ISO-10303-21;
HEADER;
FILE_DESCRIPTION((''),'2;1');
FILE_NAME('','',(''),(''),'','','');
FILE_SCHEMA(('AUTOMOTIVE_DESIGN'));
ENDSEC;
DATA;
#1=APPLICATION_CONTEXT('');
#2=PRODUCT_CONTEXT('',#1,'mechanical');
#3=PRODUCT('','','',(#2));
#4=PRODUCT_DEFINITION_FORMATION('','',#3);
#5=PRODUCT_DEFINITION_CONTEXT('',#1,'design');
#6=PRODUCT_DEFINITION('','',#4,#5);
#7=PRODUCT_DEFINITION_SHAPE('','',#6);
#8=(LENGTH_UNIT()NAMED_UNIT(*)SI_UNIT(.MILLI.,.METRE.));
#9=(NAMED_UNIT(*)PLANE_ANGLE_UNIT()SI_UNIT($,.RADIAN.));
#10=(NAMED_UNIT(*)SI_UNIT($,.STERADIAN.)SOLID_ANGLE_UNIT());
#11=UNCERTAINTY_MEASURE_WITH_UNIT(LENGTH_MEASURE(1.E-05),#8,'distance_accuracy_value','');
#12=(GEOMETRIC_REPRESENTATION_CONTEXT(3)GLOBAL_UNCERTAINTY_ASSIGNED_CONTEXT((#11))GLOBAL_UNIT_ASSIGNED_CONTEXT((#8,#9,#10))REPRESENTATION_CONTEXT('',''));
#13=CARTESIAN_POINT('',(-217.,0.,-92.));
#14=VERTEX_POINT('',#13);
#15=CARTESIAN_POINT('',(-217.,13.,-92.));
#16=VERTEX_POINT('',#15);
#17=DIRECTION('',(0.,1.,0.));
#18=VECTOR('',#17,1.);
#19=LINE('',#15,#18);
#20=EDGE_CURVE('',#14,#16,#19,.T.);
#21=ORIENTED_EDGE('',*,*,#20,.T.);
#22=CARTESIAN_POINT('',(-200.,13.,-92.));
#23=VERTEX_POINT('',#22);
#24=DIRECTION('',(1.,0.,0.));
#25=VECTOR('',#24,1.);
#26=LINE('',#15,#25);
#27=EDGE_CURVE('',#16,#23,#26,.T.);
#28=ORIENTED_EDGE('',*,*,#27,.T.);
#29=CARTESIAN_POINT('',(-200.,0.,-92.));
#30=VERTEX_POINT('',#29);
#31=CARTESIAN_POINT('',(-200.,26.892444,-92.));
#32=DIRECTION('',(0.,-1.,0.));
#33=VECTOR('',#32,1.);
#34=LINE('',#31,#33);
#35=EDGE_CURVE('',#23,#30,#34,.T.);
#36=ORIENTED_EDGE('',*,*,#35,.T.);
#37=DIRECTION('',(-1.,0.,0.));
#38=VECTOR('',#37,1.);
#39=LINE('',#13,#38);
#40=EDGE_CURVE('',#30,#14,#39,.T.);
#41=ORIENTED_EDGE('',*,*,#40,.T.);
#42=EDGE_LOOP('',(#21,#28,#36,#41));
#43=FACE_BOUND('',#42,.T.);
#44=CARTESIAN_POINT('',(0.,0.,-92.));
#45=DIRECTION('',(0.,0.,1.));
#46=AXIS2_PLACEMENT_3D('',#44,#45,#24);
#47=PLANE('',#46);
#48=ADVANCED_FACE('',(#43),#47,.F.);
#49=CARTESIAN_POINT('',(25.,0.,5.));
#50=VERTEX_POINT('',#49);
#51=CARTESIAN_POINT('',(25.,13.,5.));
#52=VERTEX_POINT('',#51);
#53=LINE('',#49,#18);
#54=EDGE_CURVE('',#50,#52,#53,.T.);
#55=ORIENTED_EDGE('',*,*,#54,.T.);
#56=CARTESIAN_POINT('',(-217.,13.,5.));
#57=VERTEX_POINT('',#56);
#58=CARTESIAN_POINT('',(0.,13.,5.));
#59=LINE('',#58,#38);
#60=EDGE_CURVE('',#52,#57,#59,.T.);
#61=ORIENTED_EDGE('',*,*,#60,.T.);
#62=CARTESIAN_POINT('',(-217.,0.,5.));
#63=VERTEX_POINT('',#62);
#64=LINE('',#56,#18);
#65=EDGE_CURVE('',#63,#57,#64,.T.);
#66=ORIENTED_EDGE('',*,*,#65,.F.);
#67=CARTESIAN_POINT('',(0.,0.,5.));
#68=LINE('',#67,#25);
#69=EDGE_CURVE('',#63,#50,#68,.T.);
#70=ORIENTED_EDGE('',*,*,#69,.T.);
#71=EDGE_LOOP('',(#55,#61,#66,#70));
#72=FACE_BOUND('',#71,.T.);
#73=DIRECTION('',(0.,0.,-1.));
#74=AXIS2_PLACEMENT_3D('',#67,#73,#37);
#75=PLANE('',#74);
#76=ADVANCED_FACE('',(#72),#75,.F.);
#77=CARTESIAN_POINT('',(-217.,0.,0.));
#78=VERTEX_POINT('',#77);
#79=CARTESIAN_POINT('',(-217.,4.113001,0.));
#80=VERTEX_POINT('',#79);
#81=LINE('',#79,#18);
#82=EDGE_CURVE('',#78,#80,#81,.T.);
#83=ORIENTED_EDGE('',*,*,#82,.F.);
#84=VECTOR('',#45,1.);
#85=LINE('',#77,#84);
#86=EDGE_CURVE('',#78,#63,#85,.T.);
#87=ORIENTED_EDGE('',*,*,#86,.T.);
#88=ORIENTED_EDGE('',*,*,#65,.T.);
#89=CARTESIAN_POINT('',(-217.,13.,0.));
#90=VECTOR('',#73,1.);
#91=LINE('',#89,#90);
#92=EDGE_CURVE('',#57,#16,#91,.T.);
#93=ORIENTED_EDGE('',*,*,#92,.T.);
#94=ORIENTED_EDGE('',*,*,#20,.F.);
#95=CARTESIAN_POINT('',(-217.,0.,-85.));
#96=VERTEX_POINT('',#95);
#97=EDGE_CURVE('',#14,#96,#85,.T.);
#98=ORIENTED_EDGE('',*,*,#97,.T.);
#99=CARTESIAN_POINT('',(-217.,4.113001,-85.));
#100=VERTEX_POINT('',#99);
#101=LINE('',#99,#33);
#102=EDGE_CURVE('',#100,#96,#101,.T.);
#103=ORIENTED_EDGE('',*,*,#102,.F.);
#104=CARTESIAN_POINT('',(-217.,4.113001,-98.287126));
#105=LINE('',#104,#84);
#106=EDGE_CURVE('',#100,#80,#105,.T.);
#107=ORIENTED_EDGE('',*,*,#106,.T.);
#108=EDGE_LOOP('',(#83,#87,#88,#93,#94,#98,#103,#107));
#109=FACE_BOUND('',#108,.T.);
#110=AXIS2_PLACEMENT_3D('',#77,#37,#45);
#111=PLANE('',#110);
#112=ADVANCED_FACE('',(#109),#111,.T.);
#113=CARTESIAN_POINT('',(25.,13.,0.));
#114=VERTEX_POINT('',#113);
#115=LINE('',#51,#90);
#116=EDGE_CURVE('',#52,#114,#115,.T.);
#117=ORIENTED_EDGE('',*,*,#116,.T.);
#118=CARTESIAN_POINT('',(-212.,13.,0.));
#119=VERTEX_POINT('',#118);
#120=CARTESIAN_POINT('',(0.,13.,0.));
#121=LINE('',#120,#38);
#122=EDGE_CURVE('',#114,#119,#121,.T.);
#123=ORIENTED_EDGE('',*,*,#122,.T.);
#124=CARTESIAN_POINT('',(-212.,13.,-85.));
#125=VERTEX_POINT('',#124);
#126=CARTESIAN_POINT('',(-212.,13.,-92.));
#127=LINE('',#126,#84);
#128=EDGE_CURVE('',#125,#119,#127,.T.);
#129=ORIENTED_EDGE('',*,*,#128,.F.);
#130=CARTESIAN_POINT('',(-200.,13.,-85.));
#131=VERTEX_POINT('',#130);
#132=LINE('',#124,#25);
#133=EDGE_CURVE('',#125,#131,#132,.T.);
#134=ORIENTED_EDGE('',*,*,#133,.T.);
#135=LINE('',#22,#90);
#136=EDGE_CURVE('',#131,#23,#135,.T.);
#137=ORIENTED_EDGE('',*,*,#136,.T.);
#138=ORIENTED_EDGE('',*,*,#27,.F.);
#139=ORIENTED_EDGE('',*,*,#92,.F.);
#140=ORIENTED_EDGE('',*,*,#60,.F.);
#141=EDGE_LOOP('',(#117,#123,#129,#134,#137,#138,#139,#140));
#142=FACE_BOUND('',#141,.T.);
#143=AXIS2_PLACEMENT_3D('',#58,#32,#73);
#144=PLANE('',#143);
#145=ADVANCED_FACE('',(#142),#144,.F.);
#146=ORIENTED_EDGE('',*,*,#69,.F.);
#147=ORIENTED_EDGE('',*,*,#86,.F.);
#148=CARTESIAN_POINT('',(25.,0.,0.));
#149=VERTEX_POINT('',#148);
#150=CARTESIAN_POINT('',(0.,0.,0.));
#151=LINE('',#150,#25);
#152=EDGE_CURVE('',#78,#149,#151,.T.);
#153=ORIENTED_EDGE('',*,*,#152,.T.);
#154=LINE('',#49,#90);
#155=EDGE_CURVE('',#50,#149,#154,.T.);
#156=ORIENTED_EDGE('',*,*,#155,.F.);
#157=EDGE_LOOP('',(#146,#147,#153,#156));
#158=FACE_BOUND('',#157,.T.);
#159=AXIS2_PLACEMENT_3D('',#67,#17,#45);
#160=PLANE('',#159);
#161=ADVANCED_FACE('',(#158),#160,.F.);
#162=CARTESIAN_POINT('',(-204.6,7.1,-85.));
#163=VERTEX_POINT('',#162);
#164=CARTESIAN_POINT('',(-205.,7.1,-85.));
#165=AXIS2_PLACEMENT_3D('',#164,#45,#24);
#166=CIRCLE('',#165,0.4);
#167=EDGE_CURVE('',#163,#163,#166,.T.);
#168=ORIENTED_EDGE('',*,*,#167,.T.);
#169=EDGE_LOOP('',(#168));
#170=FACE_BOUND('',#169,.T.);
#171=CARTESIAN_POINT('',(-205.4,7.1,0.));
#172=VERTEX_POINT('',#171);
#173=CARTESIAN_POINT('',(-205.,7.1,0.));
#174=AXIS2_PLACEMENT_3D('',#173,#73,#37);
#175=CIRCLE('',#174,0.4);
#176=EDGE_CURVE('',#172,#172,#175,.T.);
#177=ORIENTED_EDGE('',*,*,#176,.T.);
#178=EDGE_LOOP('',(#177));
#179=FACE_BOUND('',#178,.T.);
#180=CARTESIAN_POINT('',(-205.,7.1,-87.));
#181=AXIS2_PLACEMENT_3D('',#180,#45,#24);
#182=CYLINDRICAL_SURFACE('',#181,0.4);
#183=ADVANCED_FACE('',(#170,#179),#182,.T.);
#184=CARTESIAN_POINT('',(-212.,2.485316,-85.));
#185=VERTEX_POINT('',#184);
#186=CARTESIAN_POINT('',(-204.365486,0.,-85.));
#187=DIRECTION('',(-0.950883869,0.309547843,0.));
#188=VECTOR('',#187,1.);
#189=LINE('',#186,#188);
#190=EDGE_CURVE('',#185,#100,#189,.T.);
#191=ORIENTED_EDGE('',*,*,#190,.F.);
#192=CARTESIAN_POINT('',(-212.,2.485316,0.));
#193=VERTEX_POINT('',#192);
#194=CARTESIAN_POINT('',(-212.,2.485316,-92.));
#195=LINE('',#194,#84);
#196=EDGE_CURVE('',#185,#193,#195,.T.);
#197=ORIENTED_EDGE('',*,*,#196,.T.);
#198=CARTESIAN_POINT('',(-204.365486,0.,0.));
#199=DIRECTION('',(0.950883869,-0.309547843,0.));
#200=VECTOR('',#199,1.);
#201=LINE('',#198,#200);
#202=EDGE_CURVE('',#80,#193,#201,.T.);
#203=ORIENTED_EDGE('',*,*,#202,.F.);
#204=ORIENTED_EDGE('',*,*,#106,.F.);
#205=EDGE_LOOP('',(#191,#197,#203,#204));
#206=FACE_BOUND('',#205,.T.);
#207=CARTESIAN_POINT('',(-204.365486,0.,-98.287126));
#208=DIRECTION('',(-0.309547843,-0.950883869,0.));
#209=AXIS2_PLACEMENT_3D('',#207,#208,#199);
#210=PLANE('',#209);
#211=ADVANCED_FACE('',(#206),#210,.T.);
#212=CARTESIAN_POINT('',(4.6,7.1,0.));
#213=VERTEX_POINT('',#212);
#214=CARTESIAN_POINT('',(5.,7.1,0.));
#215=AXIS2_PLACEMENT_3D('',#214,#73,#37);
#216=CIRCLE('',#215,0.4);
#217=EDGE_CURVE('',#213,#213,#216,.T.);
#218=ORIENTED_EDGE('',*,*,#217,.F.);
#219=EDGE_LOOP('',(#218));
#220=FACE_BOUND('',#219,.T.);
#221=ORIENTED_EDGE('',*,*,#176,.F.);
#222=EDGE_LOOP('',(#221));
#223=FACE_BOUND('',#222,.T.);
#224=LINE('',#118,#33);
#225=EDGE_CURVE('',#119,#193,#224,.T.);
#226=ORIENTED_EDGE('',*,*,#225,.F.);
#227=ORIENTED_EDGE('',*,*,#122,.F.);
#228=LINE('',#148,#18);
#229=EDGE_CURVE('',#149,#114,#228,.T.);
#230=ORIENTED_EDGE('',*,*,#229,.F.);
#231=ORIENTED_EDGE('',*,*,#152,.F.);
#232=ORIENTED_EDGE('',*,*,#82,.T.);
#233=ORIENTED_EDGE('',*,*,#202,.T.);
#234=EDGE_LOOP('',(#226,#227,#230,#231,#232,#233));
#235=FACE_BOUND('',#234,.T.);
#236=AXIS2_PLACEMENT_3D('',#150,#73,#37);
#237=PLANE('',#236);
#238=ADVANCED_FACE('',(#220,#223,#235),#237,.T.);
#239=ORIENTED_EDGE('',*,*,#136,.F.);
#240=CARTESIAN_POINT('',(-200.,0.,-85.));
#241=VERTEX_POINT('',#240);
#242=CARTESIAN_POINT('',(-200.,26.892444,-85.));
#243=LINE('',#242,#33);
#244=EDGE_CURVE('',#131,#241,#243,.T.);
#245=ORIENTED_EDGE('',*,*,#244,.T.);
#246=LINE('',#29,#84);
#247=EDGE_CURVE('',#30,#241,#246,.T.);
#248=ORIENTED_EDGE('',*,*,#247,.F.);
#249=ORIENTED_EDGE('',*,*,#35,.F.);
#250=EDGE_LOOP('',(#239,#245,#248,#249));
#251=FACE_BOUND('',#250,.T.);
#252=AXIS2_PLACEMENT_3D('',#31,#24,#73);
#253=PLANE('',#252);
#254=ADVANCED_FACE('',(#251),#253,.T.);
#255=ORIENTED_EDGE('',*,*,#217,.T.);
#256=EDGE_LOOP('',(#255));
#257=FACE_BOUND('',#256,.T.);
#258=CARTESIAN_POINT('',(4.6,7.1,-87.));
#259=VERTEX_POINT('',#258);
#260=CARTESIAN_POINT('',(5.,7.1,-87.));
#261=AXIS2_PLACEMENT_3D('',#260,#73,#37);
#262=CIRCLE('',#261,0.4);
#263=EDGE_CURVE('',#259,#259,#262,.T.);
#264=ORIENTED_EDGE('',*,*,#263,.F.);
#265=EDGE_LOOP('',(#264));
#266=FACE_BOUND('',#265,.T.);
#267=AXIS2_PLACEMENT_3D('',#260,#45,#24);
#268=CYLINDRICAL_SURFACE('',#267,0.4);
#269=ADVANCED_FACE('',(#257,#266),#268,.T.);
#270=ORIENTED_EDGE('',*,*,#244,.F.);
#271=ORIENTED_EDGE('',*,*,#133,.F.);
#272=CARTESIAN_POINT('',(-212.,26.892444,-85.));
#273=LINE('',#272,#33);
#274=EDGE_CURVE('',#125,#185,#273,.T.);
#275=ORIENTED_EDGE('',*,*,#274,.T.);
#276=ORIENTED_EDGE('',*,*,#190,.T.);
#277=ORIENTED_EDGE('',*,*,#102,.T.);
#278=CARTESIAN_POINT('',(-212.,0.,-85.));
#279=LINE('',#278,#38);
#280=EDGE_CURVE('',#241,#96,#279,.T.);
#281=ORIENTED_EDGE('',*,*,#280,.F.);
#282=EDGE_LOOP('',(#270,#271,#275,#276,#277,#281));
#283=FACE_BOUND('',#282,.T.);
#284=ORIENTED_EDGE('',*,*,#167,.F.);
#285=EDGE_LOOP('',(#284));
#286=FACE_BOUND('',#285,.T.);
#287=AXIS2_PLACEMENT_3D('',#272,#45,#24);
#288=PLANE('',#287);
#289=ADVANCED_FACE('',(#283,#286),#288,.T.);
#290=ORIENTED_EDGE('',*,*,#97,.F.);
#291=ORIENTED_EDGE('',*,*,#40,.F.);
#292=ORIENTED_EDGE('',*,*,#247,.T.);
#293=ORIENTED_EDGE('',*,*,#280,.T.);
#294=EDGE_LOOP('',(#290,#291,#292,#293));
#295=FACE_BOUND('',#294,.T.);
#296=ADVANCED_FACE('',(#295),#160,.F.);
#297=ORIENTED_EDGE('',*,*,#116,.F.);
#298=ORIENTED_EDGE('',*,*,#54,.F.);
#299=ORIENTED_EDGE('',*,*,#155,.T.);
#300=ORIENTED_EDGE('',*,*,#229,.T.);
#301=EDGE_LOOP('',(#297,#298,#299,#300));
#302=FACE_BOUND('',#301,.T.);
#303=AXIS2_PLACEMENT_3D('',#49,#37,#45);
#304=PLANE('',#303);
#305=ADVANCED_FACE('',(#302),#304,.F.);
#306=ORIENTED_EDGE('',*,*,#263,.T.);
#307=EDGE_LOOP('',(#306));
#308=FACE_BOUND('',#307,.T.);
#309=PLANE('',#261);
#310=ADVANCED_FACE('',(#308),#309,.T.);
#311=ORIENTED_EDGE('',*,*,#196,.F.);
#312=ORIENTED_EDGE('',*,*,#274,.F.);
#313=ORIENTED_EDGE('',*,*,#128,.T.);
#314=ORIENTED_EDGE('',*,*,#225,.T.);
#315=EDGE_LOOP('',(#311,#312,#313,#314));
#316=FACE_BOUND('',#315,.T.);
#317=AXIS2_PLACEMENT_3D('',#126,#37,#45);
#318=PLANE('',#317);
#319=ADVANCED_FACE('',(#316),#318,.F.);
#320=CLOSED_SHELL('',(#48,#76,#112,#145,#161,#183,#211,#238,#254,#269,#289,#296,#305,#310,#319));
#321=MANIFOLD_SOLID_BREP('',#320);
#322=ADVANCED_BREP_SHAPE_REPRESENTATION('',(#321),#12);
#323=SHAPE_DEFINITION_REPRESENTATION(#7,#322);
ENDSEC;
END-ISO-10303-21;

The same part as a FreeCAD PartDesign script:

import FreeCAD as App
import Part
import Sketcher
Q = App.Units.Quantity


def add_polygon(sketch, points):
    """Adds a closed chain of lines whose ends are joined by coincident constraints."""
    first, n = sketch.GeometryCount, len(points)
    for a, b in zip(points, points[1:] + points[:1]):
        sketch.addGeometry(Part.LineSegment(App.Vector(*a, 0), App.Vector(*b, 0)), False)
    for i in range(n):
        sketch.addConstraint(Sketcher.Constraint("Coincident", first + i, 2, first + (i + 1) % n, 1))

doc = App.newDocument("Part")
params = doc.addObject("Spreadsheet::Sheet", "Params")
for row, (alias, value) in enumerate([
    ("sketch1_width", "25 mm"),
    ("sketch1_height", "13 mm"),
    ("pad1_length", "5 mm"),
    ("sketch2_diameter", "0.8 mm"),
    ("pad2_length", "87 mm"),
    ("sketch3_width", "13 mm"),
    ("sketch3_height", "5 mm"),
    ("pad3_length", "210 mm"),
    ("sketch4_diameter", "0.8 mm"),
    ("pad4_length", "87 mm"),
    ("sketch5_width", "13 mm"),
    ("sketch5_height", "5 mm"),
    ("pad5_length", "7 mm"),
    ("sketch6_width", "5 mm"),
    ("sketch6_height", "13 mm"),
    ("pad6_length", "92 mm"),
    ("sketch7_width", "12 mm"),
    ("sketch7_height", "7 mm"),
    ("pad7_length", "13 mm"),
    ("pocket1_length", "85 mm"),
], start=1):
    params.set(f"A{row}", alias)
    params.set(f"B{row}", "=" + value)
    params.setAlias(f"B{row}", alias)

body = doc.addObject("PartDesign::Body", "Body")

sketch1 = body.newObject("Sketcher::SketchObject", "Sketch")
sketch1.AttachmentSupport = (doc.getObject("XY_Plane"), [""])
sketch1.MapMode = "FlatFace"
add_polygon(sketch1, [(0, 13), (0, 0), (25, 0), (25, 13)])
sketch1.addConstraint(Sketcher.Constraint("Vertical", 0))
sketch1.addConstraint(Sketcher.Constraint("Horizontal", 1))
sketch1.addConstraint(Sketcher.Constraint("Vertical", 2))
sketch1.addConstraint(Sketcher.Constraint("Horizontal", 3))
sketch1.addConstraint(Sketcher.Constraint("Coincident", 0, 2, -1, 1))
sketch1.addConstraint(Sketcher.Constraint("DistanceX", 1, 1, 1, 2, Q("25 mm")))
sketch1.addConstraint(Sketcher.Constraint("DistanceY", 0, 2, 0, 1, Q("13 mm")))
sketch1.setExpression("Constraints[9]", "Params.sketch1_width")
sketch1.setExpression("Constraints[10]", "Params.sketch1_height")
pad1 = body.newObject("PartDesign::Pad", "Pad")
pad1.Profile = sketch1
pad1.setExpression("Length", "Params.pad1_length")

sketch2 = body.newObject("Sketcher::SketchObject", "Sketch001")
sketch2.AttachmentSupport = (doc.getObject("XY_Plane"), [""])
sketch2.MapMode = "FlatFace"
sketch2.addGeometry(Part.Circle(App.Vector(5, 7.1, 0), App.Vector(0, 0, 1), 0.4), False)
sketch2.addConstraint(Sketcher.Constraint("Diameter", 0, Q("0.8 mm")))
sketch2.addConstraint(Sketcher.Constraint("DistanceX", -1, 1, 0, 3, Q("5 mm")))
sketch2.addConstraint(Sketcher.Constraint("DistanceY", -1, 1, 0, 3, Q("7.1 mm")))
sketch2.setExpression("Constraints[0]", "Params.sketch2_diameter")
pad2 = body.newObject("PartDesign::Pad", "Pad001")
pad2.Profile = sketch2
pad2.setExpression("Length", "Params.pad2_length")
pad2.Reversed = True

sketch3 = body.newObject("Sketcher::SketchObject", "Sketch002")
sketch3.AttachmentSupport = (doc.getObject("YZ_Plane"), [""])
sketch3.MapMode = "FlatFace"
add_polygon(sketch3, [(13, 0), (0, 0), (0, 5), (13, 5)])
sketch3.addConstraint(Sketcher.Constraint("Horizontal", 0))
sketch3.addConstraint(Sketcher.Constraint("Vertical", 1))
sketch3.addConstraint(Sketcher.Constraint("Horizontal", 2))
sketch3.addConstraint(Sketcher.Constraint("Vertical", 3))
sketch3.addConstraint(Sketcher.Constraint("Coincident", 0, 2, -1, 1))
sketch3.addConstraint(Sketcher.Constraint("DistanceX", 0, 2, 0, 1, Q("13 mm")))
sketch3.addConstraint(Sketcher.Constraint("DistanceY", 1, 1, 1, 2, Q("5 mm")))
sketch3.setExpression("Constraints[9]", "Params.sketch3_width")
sketch3.setExpression("Constraints[10]", "Params.sketch3_height")
pad3 = body.newObject("PartDesign::Pad", "Pad002")
pad3.Profile = sketch3
pad3.setExpression("Length", "Params.pad3_length")
pad3.Reversed = True

sketch4 = body.newObject("Sketcher::SketchObject", "Sketch003")
sketch4.AttachmentSupport = (doc.getObject("XY_Plane"), [""])
sketch4.MapMode = "FlatFace"
sketch4.addGeometry(Part.Circle(App.Vector(-205, 7.1, 0), App.Vector(0, 0, 1), 0.4), False)
sketch4.addConstraint(Sketcher.Constraint("Diameter", 0, Q("0.8 mm")))
sketch4.addConstraint(Sketcher.Constraint("DistanceX", 0, 3, -1, 1, Q("205 mm")))
sketch4.addConstraint(Sketcher.Constraint("DistanceY", -1, 1, 0, 3, Q("7.1 mm")))
sketch4.setExpression("Constraints[0]", "Params.sketch4_diameter")
pad4 = body.newObject("PartDesign::Pad", "Pad003")
pad4.Profile = sketch4
pad4.setExpression("Length", "Params.pad4_length")
pad4.Reversed = True

sketch5 = body.newObject("Sketcher::SketchObject", "Sketch004")
sketch5.AttachmentSupport = (doc.getObject("YZ_Plane"), [""])
sketch5.MapMode = "FlatFace"
sketch5.AttachmentOffset = App.Placement(App.Vector(0, 0, -210), App.Rotation())
add_polygon(sketch5, [(13, 0), (0, 0), (0, 5), (13, 5)])
sketch5.addConstraint(Sketcher.Constraint("Horizontal", 0))
sketch5.addConstraint(Sketcher.Constraint("Vertical", 1))
sketch5.addConstraint(Sketcher.Constraint("Horizontal", 2))
sketch5.addConstraint(Sketcher.Constraint("Vertical", 3))
sketch5.addConstraint(Sketcher.Constraint("Coincident", 0, 2, -1, 1))
sketch5.addConstraint(Sketcher.Constraint("DistanceX", 0, 2, 0, 1, Q("13 mm")))
sketch5.addConstraint(Sketcher.Constraint("DistanceY", 1, 1, 1, 2, Q("5 mm")))
sketch5.setExpression("Constraints[9]", "Params.sketch5_width")
sketch5.setExpression("Constraints[10]", "Params.sketch5_height")
pad5 = body.newObject("PartDesign::Pad", "Pad004")
pad5.Profile = sketch5
pad5.setExpression("Length", "Params.pad5_length")
pad5.Reversed = True

sketch6 = body.newObject("Sketcher::SketchObject", "Sketch005")
sketch6.AttachmentSupport = (doc.getObject("XY_Plane"), [""])
sketch6.MapMode = "FlatFace"
add_polygon(sketch6, [(-212, 13), (-212, 0), (-217, 0), (-217, 13)])
sketch6.addConstraint(Sketcher.Constraint("Vertical", 0))
sketch6.addConstraint(Sketcher.Constraint("Horizontal", 1))
sketch6.addConstraint(Sketcher.Constraint("Vertical", 2))
sketch6.addConstraint(Sketcher.Constraint("Horizontal", 3))
sketch6.addConstraint(Sketcher.Constraint("PointOnObject", 0, 2, -1))
sketch6.addConstraint(Sketcher.Constraint("DistanceX", 1, 2, 1, 1, Q("5 mm")))
sketch6.addConstraint(Sketcher.Constraint("DistanceY", 0, 2, 0, 1, Q("13 mm")))
sketch6.addConstraint(Sketcher.Constraint("DistanceX", 0, 2, -1, 1, Q("212 mm")))
sketch6.setExpression("Constraints[9]", "Params.sketch6_width")
sketch6.setExpression("Constraints[10]", "Params.sketch6_height")
pad6 = body.newObject("PartDesign::Pad", "Pad005")
pad6.Profile = sketch6
pad6.setExpression("Length", "Params.pad6_length")
pad6.Reversed = True

sketch7 = body.newObject("Sketcher::SketchObject", "Sketch006")
sketch7.AttachmentSupport = (doc.getObject("XZ_Plane"), [""])
sketch7.MapMode = "FlatFace"
sketch7.AttachmentOffset = App.Placement(App.Vector(0, 0, -13), App.Rotation())
add_polygon(sketch7, [(-212, -85), (-212, -92), (-200, -92), (-200, -85)])
sketch7.addConstraint(Sketcher.Constraint("Vertical", 0))
sketch7.addConstraint(Sketcher.Constraint("Horizontal", 1))
sketch7.addConstraint(Sketcher.Constraint("Vertical", 2))
sketch7.addConstraint(Sketcher.Constraint("Horizontal", 3))
sketch7.addConstraint(Sketcher.Constraint("DistanceX", 1, 1, 1, 2, Q("12 mm")))
sketch7.addConstraint(Sketcher.Constraint("DistanceY", 0, 2, 0, 1, Q("7 mm")))
sketch7.addConstraint(Sketcher.Constraint("DistanceX", 0, 2, -1, 1, Q("212 mm")))
sketch7.addConstraint(Sketcher.Constraint("DistanceY", 0, 2, -1, 1, Q("92 mm")))
sketch7.setExpression("Constraints[8]", "Params.sketch7_width")
sketch7.setExpression("Constraints[9]", "Params.sketch7_height")
pad7 = body.newObject("PartDesign::Pad", "Pad006")
pad7.Profile = sketch7
pad7.setExpression("Length", "Params.pad7_length")

sketch8 = body.newObject("Sketcher::SketchObject", "Sketch007")
sketch8.AttachmentSupport = (doc.getObject("XY_Plane"), [""])
sketch8.MapMode = "FlatFace"
add_polygon(sketch8, [(-217, 4.113001), (-204.365486, 0), (-217, 0)])
sketch8.addConstraint(Sketcher.Constraint("Horizontal", 1))
sketch8.addConstraint(Sketcher.Constraint("Vertical", 2))
sketch8.addConstraint(Sketcher.Constraint("PointOnObject", 0, 2, -1))
sketch8.addConstraint(Sketcher.Constraint("DistanceX", 1, 2, -1, 1, Q("217 mm")))
sketch8.addConstraint(Sketcher.Constraint("DistanceY", 2, 1, 2, 2, Q("4.113001 mm")))
sketch8.addConstraint(Sketcher.Constraint("DistanceX", 1, 2, 1, 1, Q("12.634514 mm")))
pocket1 = body.newObject("PartDesign::Pocket", "Pocket")
pocket1.Profile = sketch8
pocket1.setExpression("Length", "Params.pocket1_length")

doc.recompute()
